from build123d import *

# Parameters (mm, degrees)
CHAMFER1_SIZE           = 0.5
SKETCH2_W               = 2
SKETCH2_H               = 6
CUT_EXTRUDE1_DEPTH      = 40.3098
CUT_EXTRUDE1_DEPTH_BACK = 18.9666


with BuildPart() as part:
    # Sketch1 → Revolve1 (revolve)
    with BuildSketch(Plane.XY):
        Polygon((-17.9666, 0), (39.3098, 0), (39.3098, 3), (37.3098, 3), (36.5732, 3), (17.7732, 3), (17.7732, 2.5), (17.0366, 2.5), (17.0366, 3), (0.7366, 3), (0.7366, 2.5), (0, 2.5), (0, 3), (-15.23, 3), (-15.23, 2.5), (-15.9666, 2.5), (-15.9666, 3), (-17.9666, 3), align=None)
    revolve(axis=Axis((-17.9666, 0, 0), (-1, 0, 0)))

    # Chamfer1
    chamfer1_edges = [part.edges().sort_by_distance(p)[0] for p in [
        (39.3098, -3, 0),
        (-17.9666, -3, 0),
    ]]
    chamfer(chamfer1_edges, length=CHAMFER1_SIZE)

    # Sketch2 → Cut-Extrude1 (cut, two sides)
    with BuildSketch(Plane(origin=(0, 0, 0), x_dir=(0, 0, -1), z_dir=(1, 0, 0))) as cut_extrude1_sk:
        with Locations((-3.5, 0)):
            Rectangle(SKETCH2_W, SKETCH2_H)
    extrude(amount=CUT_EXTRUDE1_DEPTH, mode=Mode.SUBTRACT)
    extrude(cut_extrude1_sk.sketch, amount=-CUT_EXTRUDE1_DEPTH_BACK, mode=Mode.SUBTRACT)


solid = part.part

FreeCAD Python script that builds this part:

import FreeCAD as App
import Part
import Sketcher
from FreeCAD import Vector
Q = App.Units.Quantity


def edges_at(feature, points):
    """Names of the edges that pass closest to the given points."""
    edges = feature.Shape.Edges
    near = lambda p: min(range(len(edges)), key=lambda i: edges[i].distToShape(Part.Vertex(*p))[0])
    return sorted({f"Edge{near(p) + 1}" for p in points})


def add_polygon(sketch, points):
    """Adds a closed chain of lines whose ends are joined by coincident constraints."""
    first, n = sketch.GeometryCount, len(points)
    for a, b in zip(points, points[1:] + points[:1]):
        sketch.addGeometry(Part.LineSegment(App.Vector(*a, 0), App.Vector(*b, 0)), False)
    for i in range(n):
        sketch.addConstraint(Sketcher.Constraint("Coincident", first + i, 2, first + (i + 1) % n, 1))

doc = App.newDocument("Part")
body = doc.addObject("PartDesign::Body", "Body")

# Sketch on XY plane
sketch1 = body.newObject("Sketcher::SketchObject", "Sketch")
sketch1.AttachmentSupport = (doc.getObject("XY_Plane"), [""])
sketch1.MapMode = "FlatFace"
add_polygon(sketch1, [(-17.9666, 0), (39.3098, 0), (39.3098, 3), (17.7732, 3), (17.7732, 2.5), (17.0366, 2.5), (17.0366, 3), (0.7366, 3), (0.7366, 2.5), (0, 2.5), (0, 3), (-15.23, 3), (-15.23, 2.5), (-15.9666, 2.5), (-15.9666, 3), (-17.9666, 3)])  # lines 0-15
sketch1.addConstraint(Sketcher.Constraint("Horizontal", 0))
sketch1.addConstraint(Sketcher.Constraint("Vertical", 1))
sketch1.addConstraint(Sketcher.Constraint("Horizontal", 2))
sketch1.addConstraint(Sketcher.Constraint("Vertical", 3))
sketch1.addConstraint(Sketcher.Constraint("Horizontal", 4))
sketch1.addConstraint(Sketcher.Constraint("Vertical", 5))
sketch1.addConstraint(Sketcher.Constraint("Horizontal", 6))
sketch1.addConstraint(Sketcher.Constraint("Vertical", 7))
sketch1.addConstraint(Sketcher.Constraint("Horizontal", 8))
sketch1.addConstraint(Sketcher.Constraint("Vertical", 9))
sketch1.addConstraint(Sketcher.Constraint("Horizontal", 10))
sketch1.addConstraint(Sketcher.Constraint("Vertical", 11))
sketch1.addConstraint(Sketcher.Constraint("Horizontal", 12))
sketch1.addConstraint(Sketcher.Constraint("Vertical", 13))
sketch1.addConstraint(Sketcher.Constraint("Horizontal", 14))
sketch1.addConstraint(Sketcher.Constraint("Vertical", 15))
sketch1.addConstraint(Sketcher.Constraint("PointOnObject", 0, 2, -1))
sketch1.addConstraint(Sketcher.Constraint("PointOnObject", 8, 2, -2))
sketch1.addConstraint(Sketcher.Constraint("Horizontal", 2, 2, 5, 2))
sketch1.addConstraint(Sketcher.Constraint("Horizontal", 4, 2, 7, 2))
sketch1.addConstraint(Sketcher.Constraint("Horizontal", 6, 2, 9, 2))
sketch1.addConstraint(Sketcher.Constraint("Horizontal", 8, 2, 11, 2))
sketch1.addConstraint(Sketcher.Constraint("Horizontal", 10, 2, 13, 2))
sketch1.addConstraint(Sketcher.Constraint("Equal", 4, 8))
sketch1.addConstraint(Sketcher.Constraint("Equal", 8, 12))
sketch1.addConstraint(Sketcher.Constraint("DistanceX", 14, 2, 14, 1, Q("2 mm")))
sketch1.addConstraint(Sketcher.Constraint("DistanceY", 1, 1, 1, 2, Q("3 mm")))
sketch1.addConstraint(Sketcher.Constraint("DistanceX", 6, 2, 6, 1, Q("16.3 mm")))
sketch1.addConstraint(Sketcher.Constraint("DistanceY", 3, 2, 3, 1, Q("0.5 mm")))
sketch1.addConstraint(Sketcher.Constraint("DistanceX", 10, 2, 10, 1, Q("15.23 mm")))
sketch1.addConstraint(Sketcher.Constraint("DistanceX", 0, 1, 0, 2, Q("57.2764 mm")))
sketch1.addConstraint(Sketcher.Constraint("DistanceX", 2, 2, 2, 1, Q("21.5366 mm")))
revolution = body.newObject("PartDesign::Revolution", "Revolution")
revolution.Profile = sketch1
revolution.ReferenceAxis = (sketch1, ["H_Axis"])
revolution.Angle = 360
doc.recompute()

chamfer = body.newObject("PartDesign::Chamfer", "Chamfer")
chamfer.Base = (revolution, edges_at(revolution, [(39.31, -3, 0), (-17.967, -3, 0)]))
chamfer.Size = 0.5

# Sketch on YZ plane
sketch2 = body.newObject("Sketcher::SketchObject", "Sketch001")
sketch2.AttachmentSupport = (doc.getObject("YZ_Plane"), [""])
sketch2.MapMode = "FlatFace"
add_polygon(sketch2, [(3, 4.5), (-3, 4.5), (-3, 2.5), (3, 2.5)])  # lines 0-3
sketch2.addConstraint(Sketcher.Constraint("Horizontal", 0))
sketch2.addConstraint(Sketcher.Constraint("Vertical", 1))
sketch2.addConstraint(Sketcher.Constraint("Horizontal", 2))
sketch2.addConstraint(Sketcher.Constraint("Vertical", 3))
sketch2.addConstraint(Sketcher.Constraint("DistanceX", 0, 2, 0, 1, Q("6 mm")))
sketch2.addConstraint(Sketcher.Constraint("DistanceY", 1, 2, 1, 1, Q("2 mm")))
sketch2.addConstraint(Sketcher.Constraint("DistanceX", 0, 2, -1, 1, Q("3 mm")))
sketch2.addConstraint(Sketcher.Constraint("DistanceY", -1, 1, 0, 2, Q("4.5 mm")))
pocket1 = body.newObject("PartDesign::Pocket", "Pocket")
pocket1.Profile = sketch2
pocket1.Type = "ThroughAll"
pocket1.Midplane = True

doc.recompute()
